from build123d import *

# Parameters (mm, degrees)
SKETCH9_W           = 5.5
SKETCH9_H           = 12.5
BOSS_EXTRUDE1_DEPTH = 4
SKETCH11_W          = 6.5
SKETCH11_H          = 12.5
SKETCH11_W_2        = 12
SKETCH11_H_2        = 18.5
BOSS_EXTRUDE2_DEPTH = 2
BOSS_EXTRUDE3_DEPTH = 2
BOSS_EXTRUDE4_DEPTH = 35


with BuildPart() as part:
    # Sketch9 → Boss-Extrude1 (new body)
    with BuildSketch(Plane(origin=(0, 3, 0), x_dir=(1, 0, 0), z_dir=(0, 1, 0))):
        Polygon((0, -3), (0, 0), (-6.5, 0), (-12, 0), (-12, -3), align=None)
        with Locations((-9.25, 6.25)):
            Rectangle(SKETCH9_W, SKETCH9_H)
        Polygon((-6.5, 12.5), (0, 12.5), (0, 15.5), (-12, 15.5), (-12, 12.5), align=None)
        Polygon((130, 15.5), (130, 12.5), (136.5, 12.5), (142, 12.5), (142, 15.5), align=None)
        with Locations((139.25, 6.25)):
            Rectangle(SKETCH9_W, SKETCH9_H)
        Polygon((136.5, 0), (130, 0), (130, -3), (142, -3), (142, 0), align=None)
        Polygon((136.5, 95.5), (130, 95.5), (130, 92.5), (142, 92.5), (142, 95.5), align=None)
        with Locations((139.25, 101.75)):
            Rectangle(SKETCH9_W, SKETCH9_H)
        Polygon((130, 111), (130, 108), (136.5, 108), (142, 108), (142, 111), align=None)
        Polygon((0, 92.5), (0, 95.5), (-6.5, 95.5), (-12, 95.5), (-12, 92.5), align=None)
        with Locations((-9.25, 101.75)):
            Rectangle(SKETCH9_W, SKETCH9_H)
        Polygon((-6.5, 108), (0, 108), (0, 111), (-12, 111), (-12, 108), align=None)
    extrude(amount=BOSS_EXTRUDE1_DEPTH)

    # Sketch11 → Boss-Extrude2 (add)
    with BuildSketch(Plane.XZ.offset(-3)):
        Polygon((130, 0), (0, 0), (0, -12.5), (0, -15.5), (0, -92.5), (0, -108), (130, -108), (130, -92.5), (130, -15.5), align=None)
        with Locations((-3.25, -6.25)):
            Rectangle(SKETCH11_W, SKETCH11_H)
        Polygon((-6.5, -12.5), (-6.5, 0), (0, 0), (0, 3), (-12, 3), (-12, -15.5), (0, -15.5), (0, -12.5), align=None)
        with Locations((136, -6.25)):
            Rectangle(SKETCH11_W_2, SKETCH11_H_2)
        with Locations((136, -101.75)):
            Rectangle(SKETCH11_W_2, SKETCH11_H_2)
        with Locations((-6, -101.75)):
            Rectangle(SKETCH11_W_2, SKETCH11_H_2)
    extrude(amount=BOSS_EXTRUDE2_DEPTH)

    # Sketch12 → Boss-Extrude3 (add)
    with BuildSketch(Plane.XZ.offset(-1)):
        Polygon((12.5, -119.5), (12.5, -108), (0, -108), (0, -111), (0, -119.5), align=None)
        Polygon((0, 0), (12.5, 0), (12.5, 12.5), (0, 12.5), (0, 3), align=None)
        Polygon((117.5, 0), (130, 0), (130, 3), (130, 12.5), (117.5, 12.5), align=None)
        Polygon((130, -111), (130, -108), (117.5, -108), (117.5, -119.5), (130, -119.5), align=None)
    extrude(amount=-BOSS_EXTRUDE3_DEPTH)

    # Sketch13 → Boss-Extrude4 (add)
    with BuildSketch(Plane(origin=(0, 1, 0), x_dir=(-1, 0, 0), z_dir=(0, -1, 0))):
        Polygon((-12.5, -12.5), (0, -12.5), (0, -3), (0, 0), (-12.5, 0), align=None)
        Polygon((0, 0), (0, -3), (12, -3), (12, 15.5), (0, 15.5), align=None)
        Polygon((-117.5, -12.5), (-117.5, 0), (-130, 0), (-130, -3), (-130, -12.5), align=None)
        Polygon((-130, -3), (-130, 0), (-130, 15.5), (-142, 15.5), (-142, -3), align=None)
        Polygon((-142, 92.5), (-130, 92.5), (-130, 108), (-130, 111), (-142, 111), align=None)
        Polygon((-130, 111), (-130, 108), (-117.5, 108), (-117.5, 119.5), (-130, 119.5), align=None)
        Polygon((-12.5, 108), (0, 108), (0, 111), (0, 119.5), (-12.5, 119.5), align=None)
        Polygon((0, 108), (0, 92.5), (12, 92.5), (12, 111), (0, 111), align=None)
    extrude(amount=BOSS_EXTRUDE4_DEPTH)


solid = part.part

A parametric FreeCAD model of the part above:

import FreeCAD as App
import Part
import Sketcher

V = App.Vector
Q = App.Units.Quantity


def add_polygon(sketch, points):
    """Adds a closed chain of lines whose ends are joined by coincident constraints."""
    first, n = sketch.GeometryCount, len(points)
    for a, b in zip(points, points[1:] + points[:1]):
        sketch.addGeometry(Part.LineSegment(App.Vector(*a, 0), App.Vector(*b, 0)), False)
    for i in range(n):
        sketch.addConstraint(Sketcher.Constraint("Coincident", first + i, 2, first + (i + 1) % n, 1))

doc = App.newDocument("Part")
body = doc.addObject("PartDesign::Body", "Body")
body.AllowCompound = True

sketch1 = doc.addObject("Sketcher::SketchObject", "Sketch")
body.addObject(sketch1)
sketch1.AttachmentSupport = (doc.XZ_Plane, [""])
sketch1.MapMode = "FlatFace"
sketch1.AttachmentOffset = App.Placement(V(0, 0, -3), App.Rotation())
add_polygon(sketch1, [(0, 3), (0, 0), (-6.5, 0), (-6.5, -12.5), (0, -12.5), (0, -15.5), (-12, -15.5), (-12, 3)])
add_polygon(sketch1, [(130, -15.5), (130, -12.5), (136.5, -12.5), (136.5, 0), (130, 0), (130, 3), (142, 3), (142, -15.5)])
add_polygon(sketch1, [(130, -95.5), (130, -92.5), (142, -92.5), (142, -111), (130, -111), (130, -108), (136.5, -108), (136.5, -95.5)])
add_polygon(sketch1, [(0, -92.5), (0, -95.5), (-6.5, -95.5), (-6.5, -108), (0, -108), (0, -111), (-12, -111), (-12, -92.5)])
sketch1.addConstraint([
    Sketcher.Constraint("Vertical", 0),
    Sketcher.Constraint("Horizontal", 1),
    Sketcher.Constraint("Vertical", 2),
    Sketcher.Constraint("Horizontal", 3),
    Sketcher.Constraint("Vertical", 4),
    Sketcher.Constraint("Horizontal", 5),
    Sketcher.Constraint("Vertical", 6),
    Sketcher.Constraint("Horizontal", 7),
    Sketcher.Constraint("Vertical", 8),
    Sketcher.Constraint("Horizontal", 9),
    Sketcher.Constraint("Vertical", 10),
    Sketcher.Constraint("Horizontal", 11),
    Sketcher.Constraint("Vertical", 12),
    Sketcher.Constraint("Horizontal", 13),
    Sketcher.Constraint("Vertical", 14),
    Sketcher.Constraint("Horizontal", 15),
    Sketcher.Constraint("Vertical", 16),
    Sketcher.Constraint("Horizontal", 17),
    Sketcher.Constraint("Vertical", 18),
    Sketcher.Constraint("Horizontal", 19),
    Sketcher.Constraint("Vertical", 20),
    Sketcher.Constraint("Horizontal", 21),
    Sketcher.Constraint("Vertical", 22),
    Sketcher.Constraint("Horizontal", 23),
    Sketcher.Constraint("Vertical", 24),
    Sketcher.Constraint("Horizontal", 25),
    Sketcher.Constraint("Vertical", 26),
    Sketcher.Constraint("Horizontal", 27),
    Sketcher.Constraint("Vertical", 28),
    Sketcher.Constraint("Horizontal", 29),
    Sketcher.Constraint("Vertical", 30),
    Sketcher.Constraint("Horizontal", 31),
    Sketcher.Constraint("Coincident", 0, 2, -1, 1),
    Sketcher.Constraint("PointOnObject", 3, 2, -2),
    Sketcher.Constraint("PointOnObject", 10, 2, -1),
    Sketcher.Constraint("PointOnObject", 24, 2, -2),
    Sketcher.Constraint("PointOnObject", 27, 2, -2),
    Sketcher.Constraint("Horizontal", 3, 2, 8, 2),
    Sketcher.Constraint("Horizontal", 7, 2, 12, 2),
    Sketcher.Constraint("Horizontal", 5, 2, 14, 2),
    Sketcher.Constraint("Horizontal", 23, 2, 24, 2),
    Sketcher.Constraint("Horizontal", 21, 2, 26, 2),
    Sketcher.Constraint("Horizontal", 19, 2, 28, 2),
    Sketcher.Constraint("Horizontal", 17, 2, 30, 2),
    Sketcher.Constraint("Vertical", 8, 2, 11, 2),
    Sketcher.Constraint("Vertical", 15, 2, 16, 2),
    Sketcher.Constraint("Vertical", 14, 2, 17, 2),
    Sketcher.Constraint("Vertical", 16, 2, 19, 2),
    Sketcher.Constraint("Vertical", 10, 2, 21, 2),
    Sketcher.Constraint("Vertical", 2, 2, 25, 2),
    Sketcher.Constraint("Vertical", 6, 2, 29, 2),
    Sketcher.Constraint("Equal", 3, 9),
    Sketcher.Constraint("Equal", 7, 13),
    Sketcher.Constraint("Equal", 0, 4),
    Sketcher.Constraint("Equal", 12, 16),
    Sketcher.Constraint("Equal", 14, 18),
    Sketcher.Constraint("Equal", 16, 20),
    Sketcher.Constraint("DistanceX", 5, 2, 5, 1, Q("12 mm")),
    Sketcher.Constraint("DistanceY", 0, 2, 0, 1, Q("3 mm")),
    Sketcher.Constraint("DistanceX", 1, 2, 1, 1, Q("6.5 mm")),
    Sketcher.Constraint("DistanceY", 2, 2, 2, 1, Q("12.5 mm")),
    Sketcher.Constraint("DistanceX", -1, 1, 8, 2, Q("130 mm")),
    Sketcher.Constraint("DistanceY", 18, 2, -1, 1, Q("111 mm")),
])
pad1 = doc.addObject("PartDesign::Pad", "Pad")
body.addObject(pad1)
pad1.Profile = sketch1
pad1.Length = 4
pad1.Reversed = True

sketch2 = doc.addObject("Sketcher::SketchObject", "Sketch001")
body.addObject(sketch2)
sketch2.AttachmentSupport = (doc.XZ_Plane, [""])
sketch2.MapMode = "FlatFace"
sketch2.AttachmentOffset = App.Placement(V(0, 0, -3), App.Rotation())
add_polygon(sketch2, [(130, 0), (0, 0), (0, 3), (-12, 3), (-12, -15.5), (0, -15.5), (0, -92.5), (-12, -92.5), (-12, -111), (0, -111), (0, -108), (130, -108), (130, -111), (142, -111), (142, -92.5), (130, -92.5), (130, -15.5), (142, -15.5), (142, 3), (130, 3)])
sketch2.addConstraint([
    Sketcher.Constraint("Horizontal", 0),
    Sketcher.Constraint("Vertical", 1),
    Sketcher.Constraint("Horizontal", 2),
    Sketcher.Constraint("Vertical", 3),
    Sketcher.Constraint("Horizontal", 4),
    Sketcher.Constraint("Vertical", 5),
    Sketcher.Constraint("Horizontal", 6),
    Sketcher.Constraint("Vertical", 7),
    Sketcher.Constraint("Horizontal", 8),
    Sketcher.Constraint("Vertical", 9),
    Sketcher.Constraint("Horizontal", 10),
    Sketcher.Constraint("Vertical", 11),
    Sketcher.Constraint("Horizontal", 12),
    Sketcher.Constraint("Vertical", 13),
    Sketcher.Constraint("Horizontal", 14),
    Sketcher.Constraint("Vertical", 15),
    Sketcher.Constraint("Horizontal", 16),
    Sketcher.Constraint("Vertical", 17),
    Sketcher.Constraint("Horizontal", 18),
    Sketcher.Constraint("Vertical", 19),
    Sketcher.Constraint("Coincident", 0, 2, -1, 1),
    Sketcher.Constraint("PointOnObject", 4, 2, -2),
    Sketcher.Constraint("PointOnObject", 8, 2, -2),
    Sketcher.Constraint("Horizontal", 8, 2, 11, 2),
    Sketcher.Constraint("Horizontal", 6, 2, 13, 2),
    Sketcher.Constraint("Horizontal", 4, 2, 15, 2),
    Sketcher.Constraint("Horizontal", 2, 2, 17, 2),
    Sketcher.Constraint("Vertical", 3, 2, 6, 2),
    Sketcher.Constraint("Vertical", 11, 2, 14, 2),
    Sketcher.Constraint("Vertical", 13, 2, 16, 2),
    Sketcher.Constraint("Vertical", 15, 2, 18, 2),
    Sketcher.Constraint("Equal", 8, 12),
    Sketcher.Constraint("Equal", 3, 7),
    Sketcher.Constraint("Equal", 1, 9),
    Sketcher.Constraint("DistanceX", 0, 2, 0, 1, Q("130 mm")),
    Sketcher.Constraint("DistanceX", 2, 2, 2, 1, Q("12 mm")),
    Sketcher.Constraint("DistanceY", 1, 1, 1, 2, Q("3 mm")),
    Sketcher.Constraint("DistanceY", 5, 2, 5, 1, Q("77 mm")),
    Sketcher.Constraint("DistanceY", 3, 2, 3, 1, Q("18.5 mm")),
])
pad2 = doc.addObject("PartDesign::Pad", "Pad001")
body.addObject(pad2)
pad2.Profile = sketch2
pad2.Length = 2

sketch3 = doc.addObject("Sketcher::SketchObject", "Sketch002")
body.addObject(sketch3)
sketch3.AttachmentSupport = (doc.XZ_Plane, [""])
sketch3.MapMode = "FlatFace"
sketch3.AttachmentOffset = App.Placement(V(0, 0, -1), App.Rotation())
add_polygon(sketch3, [(12.5, -119.5), (12.5, -108), (0, -108), (0, -119.5)])
add_polygon(sketch3, [(0, 0), (12.5, 0), (12.5, 12.5), (0, 12.5)])
add_polygon(sketch3, [(117.5, 0), (130, 0), (130, 12.5), (117.5, 12.5)])
add_polygon(sketch3, [(130, -108), (117.5, -108), (117.5, -119.5), (130, -119.5)])
sketch3.addConstraint([
    Sketcher.Constraint("Vertical", 0),
    Sketcher.Constraint("Horizontal", 1),
    Sketcher.Constraint("Vertical", 2),
    Sketcher.Constraint("Horizontal", 3),
    Sketcher.Constraint("Horizontal", 4),
    Sketcher.Constraint("Vertical", 5),
    Sketcher.Constraint("Horizontal", 6),
    Sketcher.Constraint("Vertical", 7),
    Sketcher.Constraint("Horizontal", 8),
    Sketcher.Constraint("Vertical", 9),
    Sketcher.Constraint("Horizontal", 10),
    Sketcher.Constraint("Vertical", 11),
    Sketcher.Constraint("Horizontal", 12),
    Sketcher.Constraint("Vertical", 13),
    Sketcher.Constraint("Horizontal", 14),
    Sketcher.Constraint("Vertical", 15),
    Sketcher.Constraint("Coincident", 7, 2, -1, 1),
    Sketcher.Constraint("PointOnObject", 1, 2, -2),
    Sketcher.Constraint("PointOnObject", 8, 2, -1),
    Sketcher.Constraint("Horizontal", 6, 2, 9, 2),
    Sketcher.Constraint("Horizontal", 1, 2, 12, 2),
    Sketcher.Constraint("Horizontal", 3, 2, 13, 2),
    Sketcher.Constraint("Vertical", 3, 2, 4, 2),
    Sketcher.Constraint("Vertical", 11, 2, 12, 2),
    Sketcher.Constraint("Vertical", 9, 2, 14, 2),
    Sketcher.Constraint("Equal", 6, 8),
    Sketcher.Constraint("Equal", 14, 5),
    Sketcher.Constraint("DistanceX", 1, 2, 1, 1, Q("12.5 mm")),
    Sketcher.Constraint("DistanceY", 0, 1, 0, 2, Q("11.5 mm")),
    Sketcher.Constraint("DistanceY", 0, 2, -1, 1, Q("108 mm")),
    Sketcher.Constraint("DistanceX", -1, 1, 8, 2, Q("130 mm")),
])
pad3 = doc.addObject("PartDesign::Pad", "Pad002")
body.addObject(pad3)
pad3.Profile = sketch3
pad3.Length = 2
pad3.Reversed = True

sketch4 = doc.addObject("Sketcher::SketchObject", "Sketch003")
body.addObject(sketch4)
sketch4.AttachmentSupport = (doc.XZ_Plane, [""])
sketch4.MapMode = "FlatFace"
sketch4.AttachmentOffset = App.Placement(V(0, 0, -1), App.Rotation())
add_polygon(sketch4, [(12.5, 12.5), (0, 12.5), (0, 3), (-12, 3), (-12, -15.5), (0, -15.5), (0, 0), (12.5, 0)])
add_polygon(sketch4, [(117.5, 12.5), (117.5, 0), (130, 0), (130, -15.5), (142, -15.5), (142, 3), (130, 3), (130, 12.5)])
add_polygon(sketch4, [(142, -92.5), (130, -92.5), (130, -108), (117.5, -108), (117.5, -119.5), (130, -119.5), (130, -111), (142, -111)])
add_polygon(sketch4, [(12.5, -108), (0, -108), (0, -92.5), (-12, -92.5), (-12, -111), (0, -111), (0, -119.5), (12.5, -119.5)])
sketch4.addConstraint([
    Sketcher.Constraint("Horizontal", 0),
    Sketcher.Constraint("Vertical", 1),
    Sketcher.Constraint("Horizontal", 2),
    Sketcher.Constraint("Vertical", 3),
    Sketcher.Constraint("Horizontal", 4),
    Sketcher.Constraint("Vertical", 5),
    Sketcher.Constraint("Horizontal", 6),
    Sketcher.Constraint("Vertical", 7),
    Sketcher.Constraint("Vertical", 8),
    Sketcher.Constraint("Horizontal", 9),
    Sketcher.Constraint("Vertical", 10),
    Sketcher.Constraint("Horizontal", 11),
    Sketcher.Constraint("Vertical", 12),
    Sketcher.Constraint("Horizontal", 13),
    Sketcher.Constraint("Vertical", 14),
    Sketcher.Constraint("Horizontal", 15),
    Sketcher.Constraint("Horizontal", 16),
    Sketcher.Constraint("Vertical", 17),
    Sketcher.Constraint("Horizontal", 18),
    Sketcher.Constraint("Vertical", 19),
    Sketcher.Constraint("Horizontal", 20),
    Sketcher.Constraint("Vertical", 21),
    Sketcher.Constraint("Horizontal", 22),
    Sketcher.Constraint("Vertical", 23),
    Sketcher.Constraint("Horizontal", 24),
    Sketcher.Constraint("Vertical", 25),
    Sketcher.Constraint("Horizontal", 26),
    Sketcher.Constraint("Vertical", 27),
    Sketcher.Constraint("Horizontal", 28),
    Sketcher.Constraint("Vertical", 29),
    Sketcher.Constraint("Horizontal", 30),
    Sketcher.Constraint("Vertical", 31),
    Sketcher.Constraint("Coincident", 5, 2, -1, 1),
    Sketcher.Constraint("PointOnObject", 0, 2, -2),
    Sketcher.Constraint("PointOnObject", 8, 2, -1),
    Sketcher.Constraint("PointOnObject", 24, 2, -2),
    Sketcher.Constraint("PointOnObject", 28, 2, -2),
    Sketcher.Constraint("Horizontal", 4, 2, 10, 2),
    Sketcher.Constraint("Horizontal", 2, 2, 12, 2),
    Sketcher.Constraint("Horizontal", 7, 2, 14, 2),
    Sketcher.Constraint("Horizontal", 18, 2, 24, 2),
    Sketcher.Constraint("Horizontal", 23, 2, 25, 2),
    Sketcher.Constraint("Horizontal", 22, 2, 27, 2),
    Sketcher.Constraint("Horizontal", 20, 2, 29, 2),
    Sketcher.Constraint("Vertical", 10, 2, 13, 2),
    Sketcher.Constraint("Vertical", 14, 2, 16, 2),
    Sketcher.Constraint("Vertical", 15, 2, 18, 2),
    Sketcher.Constraint("Vertical", 17, 2, 20, 2),
    Sketcher.Constraint("Vertical", 12, 2, 22, 2),
    Sketcher.Constraint("Vertical", 3, 2, 26, 2),
    Sketcher.Constraint("Vertical", 7, 2, 30, 2),
    Sketcher.Constraint("Equal", 6, 9),
    Sketcher.Constraint("Equal", 4, 11),
    Sketcher.Constraint("Equal", 30, 7),
    Sketcher.Constraint("Equal", 10, 17),
    Sketcher.Constraint("Equal", 12, 23),
    Sketcher.Constraint("DistanceX", 2, 2, 2, 1, Q("12 mm")),
    Sketcher.Constraint("DistanceX", 0, 2, 0, 1, Q("12.5 mm")),
    Sketcher.Constraint("DistanceY", 1, 2, 1, 1, Q("9.5 mm")),
    Sketcher.Constraint("DistanceY", 3, 2, 3, 1, Q("18.5 mm")),
    Sketcher.Constraint("DistanceY", 19, 2, 19, 1, Q("11.5 mm")),
    Sketcher.Constraint("DistanceX", -1, 1, 9, 2, Q("130 mm")),
    Sketcher.Constraint("DistanceY", 17, 2, -1, 1, Q("108 mm")),
])
pad4 = doc.addObject("PartDesign::Pad", "Pad003")
body.addObject(pad4)
pad4.Profile = sketch4
pad4.Length = 35

doc.recompute()
